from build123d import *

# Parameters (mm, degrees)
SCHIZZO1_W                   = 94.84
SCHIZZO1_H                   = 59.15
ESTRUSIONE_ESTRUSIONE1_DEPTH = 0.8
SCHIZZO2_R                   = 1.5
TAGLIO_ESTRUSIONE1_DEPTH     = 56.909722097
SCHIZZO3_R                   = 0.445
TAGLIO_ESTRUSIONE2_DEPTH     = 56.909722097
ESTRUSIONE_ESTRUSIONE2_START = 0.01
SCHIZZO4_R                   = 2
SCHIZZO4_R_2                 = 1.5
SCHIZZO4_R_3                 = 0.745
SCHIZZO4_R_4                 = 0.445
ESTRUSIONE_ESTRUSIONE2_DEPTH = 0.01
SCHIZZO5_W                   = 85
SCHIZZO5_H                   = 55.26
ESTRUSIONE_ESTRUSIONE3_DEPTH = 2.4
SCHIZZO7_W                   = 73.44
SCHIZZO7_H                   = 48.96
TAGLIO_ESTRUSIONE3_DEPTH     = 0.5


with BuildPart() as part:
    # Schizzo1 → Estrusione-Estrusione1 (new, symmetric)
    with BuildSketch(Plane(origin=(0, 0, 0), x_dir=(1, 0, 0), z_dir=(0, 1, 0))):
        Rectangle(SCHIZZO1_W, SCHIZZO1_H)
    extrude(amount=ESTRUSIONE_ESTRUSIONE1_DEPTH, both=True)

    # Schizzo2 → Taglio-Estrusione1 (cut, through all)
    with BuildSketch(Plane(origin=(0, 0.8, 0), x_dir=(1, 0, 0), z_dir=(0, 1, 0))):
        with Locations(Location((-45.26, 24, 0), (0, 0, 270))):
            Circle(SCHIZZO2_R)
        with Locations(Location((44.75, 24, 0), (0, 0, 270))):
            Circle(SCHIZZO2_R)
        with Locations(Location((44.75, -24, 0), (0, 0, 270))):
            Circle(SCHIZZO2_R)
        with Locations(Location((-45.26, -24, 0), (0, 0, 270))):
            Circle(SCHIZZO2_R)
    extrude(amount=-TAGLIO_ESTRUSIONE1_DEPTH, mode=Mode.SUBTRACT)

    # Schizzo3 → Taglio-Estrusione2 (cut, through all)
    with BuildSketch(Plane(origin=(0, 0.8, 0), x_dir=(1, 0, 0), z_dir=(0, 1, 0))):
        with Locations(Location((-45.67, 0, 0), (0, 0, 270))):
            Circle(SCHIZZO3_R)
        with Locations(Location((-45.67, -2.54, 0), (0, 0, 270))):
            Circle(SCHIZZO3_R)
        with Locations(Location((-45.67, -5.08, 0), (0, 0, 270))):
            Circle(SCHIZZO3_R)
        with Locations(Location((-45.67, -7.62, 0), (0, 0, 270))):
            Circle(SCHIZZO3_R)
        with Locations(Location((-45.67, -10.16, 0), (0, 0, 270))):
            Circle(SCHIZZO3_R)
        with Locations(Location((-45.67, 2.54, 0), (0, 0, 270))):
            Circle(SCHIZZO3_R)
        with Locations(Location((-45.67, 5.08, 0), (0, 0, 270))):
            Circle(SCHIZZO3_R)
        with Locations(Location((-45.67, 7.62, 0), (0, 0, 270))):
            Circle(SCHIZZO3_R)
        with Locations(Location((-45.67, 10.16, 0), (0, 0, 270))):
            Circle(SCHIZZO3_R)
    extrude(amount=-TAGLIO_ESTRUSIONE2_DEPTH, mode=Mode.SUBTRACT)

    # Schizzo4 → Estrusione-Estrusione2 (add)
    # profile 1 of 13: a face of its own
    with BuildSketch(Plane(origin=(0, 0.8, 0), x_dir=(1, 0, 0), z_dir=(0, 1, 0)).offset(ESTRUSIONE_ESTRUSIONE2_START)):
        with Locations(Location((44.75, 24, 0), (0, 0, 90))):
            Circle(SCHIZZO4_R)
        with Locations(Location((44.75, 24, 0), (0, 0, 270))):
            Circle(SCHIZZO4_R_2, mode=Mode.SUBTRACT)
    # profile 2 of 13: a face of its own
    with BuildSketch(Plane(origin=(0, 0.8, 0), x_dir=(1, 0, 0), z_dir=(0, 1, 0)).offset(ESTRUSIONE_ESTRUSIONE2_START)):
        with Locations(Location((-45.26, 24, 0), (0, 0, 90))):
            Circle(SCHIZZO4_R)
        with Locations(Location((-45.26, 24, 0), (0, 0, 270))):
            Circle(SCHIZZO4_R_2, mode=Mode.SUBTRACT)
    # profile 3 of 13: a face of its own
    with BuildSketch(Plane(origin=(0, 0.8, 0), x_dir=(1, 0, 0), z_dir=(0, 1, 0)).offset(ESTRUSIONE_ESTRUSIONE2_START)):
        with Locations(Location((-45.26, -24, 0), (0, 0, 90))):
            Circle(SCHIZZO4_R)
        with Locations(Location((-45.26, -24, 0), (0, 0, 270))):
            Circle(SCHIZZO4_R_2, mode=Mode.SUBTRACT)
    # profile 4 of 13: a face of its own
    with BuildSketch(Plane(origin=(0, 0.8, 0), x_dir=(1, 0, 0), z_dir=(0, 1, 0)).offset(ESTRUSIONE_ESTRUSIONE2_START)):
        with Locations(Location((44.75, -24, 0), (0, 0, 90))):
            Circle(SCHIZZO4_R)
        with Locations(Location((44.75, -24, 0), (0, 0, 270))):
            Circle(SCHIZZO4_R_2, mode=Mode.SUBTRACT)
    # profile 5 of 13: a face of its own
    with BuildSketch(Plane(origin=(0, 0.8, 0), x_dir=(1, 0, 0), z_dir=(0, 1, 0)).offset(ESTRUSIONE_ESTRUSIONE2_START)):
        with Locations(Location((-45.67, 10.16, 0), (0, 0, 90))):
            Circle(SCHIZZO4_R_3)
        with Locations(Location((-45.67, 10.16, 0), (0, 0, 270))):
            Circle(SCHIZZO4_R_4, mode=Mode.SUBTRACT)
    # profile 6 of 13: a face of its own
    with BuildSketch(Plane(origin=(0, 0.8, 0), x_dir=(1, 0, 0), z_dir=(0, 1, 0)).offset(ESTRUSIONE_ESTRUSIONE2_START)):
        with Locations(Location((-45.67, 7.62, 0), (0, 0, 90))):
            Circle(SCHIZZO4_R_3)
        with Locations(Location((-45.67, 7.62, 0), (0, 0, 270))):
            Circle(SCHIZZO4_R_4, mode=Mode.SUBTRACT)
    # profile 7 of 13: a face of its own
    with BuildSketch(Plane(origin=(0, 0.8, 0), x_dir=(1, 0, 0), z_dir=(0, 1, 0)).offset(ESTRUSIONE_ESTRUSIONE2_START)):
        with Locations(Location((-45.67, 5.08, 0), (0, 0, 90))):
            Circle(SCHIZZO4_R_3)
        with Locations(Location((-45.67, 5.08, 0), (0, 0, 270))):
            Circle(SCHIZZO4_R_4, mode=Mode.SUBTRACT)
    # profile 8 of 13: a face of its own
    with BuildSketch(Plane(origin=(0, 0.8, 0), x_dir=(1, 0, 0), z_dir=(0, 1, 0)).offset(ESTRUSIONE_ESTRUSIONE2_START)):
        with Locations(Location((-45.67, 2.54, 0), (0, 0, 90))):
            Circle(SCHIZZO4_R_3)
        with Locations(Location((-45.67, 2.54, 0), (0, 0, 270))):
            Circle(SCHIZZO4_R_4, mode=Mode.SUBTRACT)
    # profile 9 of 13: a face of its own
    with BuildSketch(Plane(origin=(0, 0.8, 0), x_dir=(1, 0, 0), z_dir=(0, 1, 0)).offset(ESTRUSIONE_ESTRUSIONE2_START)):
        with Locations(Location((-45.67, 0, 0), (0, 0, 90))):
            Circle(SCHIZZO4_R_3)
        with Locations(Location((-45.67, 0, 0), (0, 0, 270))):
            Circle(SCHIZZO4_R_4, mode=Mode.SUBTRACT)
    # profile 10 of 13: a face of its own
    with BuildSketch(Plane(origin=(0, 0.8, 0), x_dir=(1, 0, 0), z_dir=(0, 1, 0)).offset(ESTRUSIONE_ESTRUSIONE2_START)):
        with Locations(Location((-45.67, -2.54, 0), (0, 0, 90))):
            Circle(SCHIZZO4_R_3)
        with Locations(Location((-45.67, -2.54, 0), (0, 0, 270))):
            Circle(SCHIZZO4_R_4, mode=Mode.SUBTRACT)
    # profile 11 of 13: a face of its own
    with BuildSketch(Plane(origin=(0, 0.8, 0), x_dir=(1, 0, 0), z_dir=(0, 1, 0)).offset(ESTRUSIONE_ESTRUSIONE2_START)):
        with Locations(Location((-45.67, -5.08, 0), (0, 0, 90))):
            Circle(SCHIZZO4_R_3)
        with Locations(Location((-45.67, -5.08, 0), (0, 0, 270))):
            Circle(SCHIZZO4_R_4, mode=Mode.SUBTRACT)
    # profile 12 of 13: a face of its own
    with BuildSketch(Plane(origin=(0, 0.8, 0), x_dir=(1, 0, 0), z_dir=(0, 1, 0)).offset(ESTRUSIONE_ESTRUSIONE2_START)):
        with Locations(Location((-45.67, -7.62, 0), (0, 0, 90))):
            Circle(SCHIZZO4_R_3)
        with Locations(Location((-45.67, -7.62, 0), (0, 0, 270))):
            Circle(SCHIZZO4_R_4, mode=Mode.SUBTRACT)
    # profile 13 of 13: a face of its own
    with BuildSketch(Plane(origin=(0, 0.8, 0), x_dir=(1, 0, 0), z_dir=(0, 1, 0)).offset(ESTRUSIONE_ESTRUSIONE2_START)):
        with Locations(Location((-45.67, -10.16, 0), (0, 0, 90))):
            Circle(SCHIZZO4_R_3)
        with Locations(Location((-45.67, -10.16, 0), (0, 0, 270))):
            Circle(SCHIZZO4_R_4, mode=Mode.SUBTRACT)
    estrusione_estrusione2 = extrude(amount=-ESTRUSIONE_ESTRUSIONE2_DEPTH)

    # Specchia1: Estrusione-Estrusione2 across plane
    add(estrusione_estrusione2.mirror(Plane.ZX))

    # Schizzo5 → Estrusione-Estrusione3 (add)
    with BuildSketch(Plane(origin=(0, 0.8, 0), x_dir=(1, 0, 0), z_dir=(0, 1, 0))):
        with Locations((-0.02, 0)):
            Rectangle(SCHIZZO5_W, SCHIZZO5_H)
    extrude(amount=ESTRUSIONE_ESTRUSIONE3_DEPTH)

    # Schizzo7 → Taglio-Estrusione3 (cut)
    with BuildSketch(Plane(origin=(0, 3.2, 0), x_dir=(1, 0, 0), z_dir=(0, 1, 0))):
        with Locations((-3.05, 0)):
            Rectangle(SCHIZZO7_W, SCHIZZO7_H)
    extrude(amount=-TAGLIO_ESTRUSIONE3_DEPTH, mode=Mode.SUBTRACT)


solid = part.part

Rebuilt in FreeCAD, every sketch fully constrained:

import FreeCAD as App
import Part
import Sketcher

V = App.Vector
Q = App.Units.Quantity


def add_polygon(sketch, points):
    """Adds a closed chain of lines whose ends are joined by coincident constraints."""
    first, n = sketch.GeometryCount, len(points)
    for a, b in zip(points, points[1:] + points[:1]):
        sketch.addGeometry(Part.LineSegment(App.Vector(*a, 0), App.Vector(*b, 0)), False)
    for i in range(n):
        sketch.addConstraint(Sketcher.Constraint("Coincident", first + i, 2, first + (i + 1) % n, 1))

doc = App.newDocument("Part")
body = doc.addObject("PartDesign::Body", "Body")

# Sketch on XZ plane
sketch1 = body.newObject("Sketcher::SketchObject", "Sketch")
sketch1.AttachmentSupport = (doc.getObject("XZ_Plane"), [""])
sketch1.MapMode = "FlatFace"
add_polygon(sketch1, [(-47, -30), (-47, 30), (47, 30), (47, -30)])  # lines 0-3
sketch1.addConstraint([
    Sketcher.Constraint("Vertical", 0),
    Sketcher.Constraint("Horizontal", 1),
    Sketcher.Constraint("Vertical", 2),
    Sketcher.Constraint("Horizontal", 3),
    Sketcher.Constraint("Symmetric", 0, 2, 2, 2, -1, 1),
    Sketcher.Constraint("DistanceX", 1, 1, 1, 2, Q("94.84 mm")),
    Sketcher.Constraint("DistanceY", 0, 1, 0, 2, Q("59.15 mm")),
])
pad1 = body.newObject("PartDesign::Pad", "Pad")
pad1.Profile = sketch1
pad1.Length = 1.6
pad1.Midplane = True

# Sketch on XZ plane
sketch2 = body.newObject("Sketcher::SketchObject", "Sketch001")
sketch2.AttachmentSupport = (doc.getObject("XZ_Plane"), [""])
sketch2.MapMode = "FlatFace"
sketch2.AttachmentOffset = App.Placement(V(0, 0, -0.8), App.Rotation())
sketch2.addGeometry([
    Part.Circle(V(-45.3, -24, 0), V(0, 0, 1), 1.5),
    Part.Circle(V(44.8, -24, 0), V(0, 0, 1), 1.5),
    Part.Circle(V(44.8, 24, 0), V(0, 0, 1), 1.5),
    Part.Circle(V(-45.3, 24, 0), V(0, 0, 1), 1.5),
], False)
sketch2.addConstraint([
    Sketcher.Constraint("Equal", 0, 1),
    Sketcher.Constraint("Equal", 1, 2),
    Sketcher.Constraint("Equal", 2, 3),
    Sketcher.Constraint("Symmetric", 1, 3, 2, 3, -1),
    Sketcher.Constraint("Symmetric", 0, 3, 3, 3, -1),
    Sketcher.Constraint("Horizontal", 0, 3, 1, 3),
    Sketcher.Constraint("Diameter", 0, Q("3 mm")),
    Sketcher.Constraint("DistanceY", 0, 3, -1, 1, Q("24 mm")),
    Sketcher.Constraint("DistanceX", 0, 3, -1, 1, Q("45.26 mm")),
    Sketcher.Constraint("DistanceX", -1, 1, 1, 3, Q("44.75 mm")),
])
pocket1 = body.newObject("PartDesign::Pocket", "Pocket")
pocket1.Profile = sketch2
pocket1.Type = "ThroughAll"
pocket1.Reversed = True

# Sketch on XZ plane
sketch3 = body.newObject("Sketcher::SketchObject", "Sketch002")
sketch3.AttachmentSupport = (doc.getObject("XZ_Plane"), [""])
sketch3.MapMode = "FlatFace"
sketch3.AttachmentOffset = App.Placement(V(0, 0, -0.8), App.Rotation())
sketch3.addGeometry([
    Part.Circle(V(-45.67, 0, 0), V(0, 0, 1), 0.45),  # 0
    Part.Circle(V(-45.67, 2.54, 0), V(0, 0, 1), 0.45),  # 1
    Part.Circle(V(-45.67, 5.08, 0), V(0, 0, 1), 0.45),  # 2
    Part.Circle(V(-45.67, 7.62, 0), V(0, 0, 1), 0.45),  # 3
    Part.Circle(V(-45.67, 10.16, 0), V(0, 0, 1), 0.45),  # 4
    Part.Circle(V(-45.67, -2.54, 0), V(0, 0, 1), 0.45),  # 5
    Part.Circle(V(-45.67, -5.08, 0), V(0, 0, 1), 0.45),  # 6
    Part.Circle(V(-45.67, -7.62, 0), V(0, 0, 1), 0.45),  # 7
    Part.Circle(V(-45.67, -10.16, 0), V(0, 0, 1), 0.45),  # 8
], False)
sketch3.addConstraint([
    Sketcher.Constraint("Equal", 0, 1),
    Sketcher.Constraint("Equal", 1, 2),
    Sketcher.Constraint("Equal", 2, 3),
    Sketcher.Constraint("Equal", 3, 4),
    Sketcher.Constraint("Equal", 4, 5),
    Sketcher.Constraint("Equal", 5, 6),
    Sketcher.Constraint("Equal", 6, 7),
    Sketcher.Constraint("Equal", 7, 8),
    Sketcher.Constraint("Symmetric", 1, 3, 5, 3, -1),
    Sketcher.Constraint("Symmetric", 2, 3, 6, 3, -1),
    Sketcher.Constraint("Symmetric", 3, 3, 7, 3, -1),
    Sketcher.Constraint("Symmetric", 4, 3, 8, 3, -1),
    Sketcher.Constraint("PointOnObject", 0, 3, -1),
    Sketcher.Constraint("Vertical", 0, 3, 1, 3),
    Sketcher.Constraint("Vertical", 1, 3, 2, 3),
    Sketcher.Constraint("Vertical", 2, 3, 3, 3),
    Sketcher.Constraint("Vertical", 3, 3, 4, 3),
    Sketcher.Constraint("Diameter", 0, Q("0.89 mm")),
    Sketcher.Constraint("DistanceY", 5, 3, 4, 3, Q("12.7 mm")),
    Sketcher.Constraint("DistanceY", 6, 3, 3, 3, Q("12.7 mm")),
    Sketcher.Constraint("DistanceX", 0, 3, -1, 1, Q("45.67 mm")),
    Sketcher.Constraint("DistanceY", -1, 1, 1, 3, Q("2.54 mm")),
    Sketcher.Constraint("DistanceY", -1, 1, 2, 3, Q("5.08 mm")),
])
pocket2 = body.newObject("PartDesign::Pocket", "Pocket001")
pocket2.Profile = sketch3
pocket2.Type = "ThroughAll"
pocket2.Reversed = True

# Sketch on XZ plane
sketch4 = body.newObject("Sketcher::SketchObject", "Sketch003")
sketch4.AttachmentSupport = (doc.getObject("XZ_Plane"), [""])
sketch4.MapMode = "FlatFace"
sketch4.AttachmentOffset = App.Placement(V(0, 0, -0.81), App.Rotation())
sketch4.addGeometry([
    Part.Circle(V(44.75, -24, 0), V(0, 0, 1), 2),  # 0
    Part.Circle(V(44.75, -24, 0), V(0, 0, 1), 1.5),  # 1
    Part.Circle(V(-45.26, -24, 0), V(0, 0, 1), 2),  # 2
    Part.Circle(V(-45.26, -24, 0), V(0, 0, 1), 1.5),  # 3
    Part.Circle(V(-45.26, 24, 0), V(0, 0, 1), 2),  # 4
    Part.Circle(V(-45.26, 24, 0), V(0, 0, 1), 1.5),  # 5
    Part.Circle(V(44.75, 24, 0), V(0, 0, 1), 2),  # 6
    Part.Circle(V(44.75, 24, 0), V(0, 0, 1), 1.5),  # 7
    Part.Circle(V(-45.67, -10.16, 0), V(0, 0, 1), 0.74),  # 8
    Part.Circle(V(-45.67, -10.16, 0), V(0, 0, 1), 0.45),  # 9
    Part.Circle(V(-45.67, -7.62, 0), V(0, 0, 1), 0.74),  # 10
    Part.Circle(V(-45.67, -7.62, 0), V(0, 0, 1), 0.45),  # 11
    Part.Circle(V(-45.67, -5.08, 0), V(0, 0, 1), 0.74),  # 12
    Part.Circle(V(-45.67, -5.08, 0), V(0, 0, 1), 0.45),  # 13
    Part.Circle(V(-45.67, -2.54, 0), V(0, 0, 1), 0.74),  # 14
    Part.Circle(V(-45.67, -2.54, 0), V(0, 0, 1), 0.45),  # 15
    Part.Circle(V(-45.67, 0, 0), V(0, 0, 1), 0.74),  # 16
    Part.Circle(V(-45.67, 0, 0), V(0, 0, 1), 0.45),  # 17
    Part.Circle(V(-45.67, 2.54, 0), V(0, 0, 1), 0.74),  # 18
    Part.Circle(V(-45.67, 2.54, 0), V(0, 0, 1), 0.45),  # 19
    Part.Circle(V(-45.67, 5.08, 0), V(0, 0, 1), 0.74),  # 20
    Part.Circle(V(-45.67, 5.08, 0), V(0, 0, 1), 0.45),  # 21
    Part.Circle(V(-45.67, 7.62, 0), V(0, 0, 1), 0.74),  # 22
    Part.Circle(V(-45.67, 7.62, 0), V(0, 0, 1), 0.45),  # 23
    Part.Circle(V(-45.67, 10.16, 0), V(0, 0, 1), 0.74),  # 24
    Part.Circle(V(-45.67, 10.16, 0), V(0, 0, 1), 0.45),  # 25
], False)
sketch4.addConstraint([
    Sketcher.Constraint("Coincident", 1, 3, 0, 3),
    Sketcher.Constraint("Coincident", 3, 3, 2, 3),
    Sketcher.Constraint("Coincident", 5, 3, 4, 3),
    Sketcher.Constraint("Coincident", 7, 3, 6, 3),
    Sketcher.Constraint("Coincident", 9, 3, 8, 3),
    Sketcher.Constraint("Coincident", 11, 3, 10, 3),
    Sketcher.Constraint("Coincident", 13, 3, 12, 3),
    Sketcher.Constraint("Coincident", 15, 3, 14, 3),
    Sketcher.Constraint("Coincident", 17, 3, 16, 3),
    Sketcher.Constraint("Coincident", 19, 3, 18, 3),
    Sketcher.Constraint("Coincident", 21, 3, 20, 3),
    Sketcher.Constraint("Coincident", 23, 3, 22, 3),
    Sketcher.Constraint("Coincident", 25, 3, 24, 3),
    Sketcher.Constraint("Equal", 0, 2),
    Sketcher.Constraint("Equal", 1, 3),
    Sketcher.Constraint("Equal", 2, 4),
    Sketcher.Constraint("Equal", 3, 5),
    Sketcher.Constraint("Equal", 4, 6),
    Sketcher.Constraint("Equal", 5, 7),
    Sketcher.Constraint("Equal", 8, 10),
    Sketcher.Constraint("Equal", 9, 11),
    Sketcher.Constraint("Equal", 10, 12),
    Sketcher.Constraint("Equal", 11, 13),
    Sketcher.Constraint("Equal", 12, 14),
    Sketcher.Constraint("Equal", 13, 15),
    Sketcher.Constraint("Equal", 14, 16),
    Sketcher.Constraint("Equal", 15, 17),
    Sketcher.Constraint("Equal", 16, 18),
    Sketcher.Constraint("Equal", 17, 19),
    Sketcher.Constraint("Equal", 18, 20),
    Sketcher.Constraint("Equal", 19, 21),
    Sketcher.Constraint("Equal", 20, 22),
    Sketcher.Constraint("Equal", 21, 23),
    Sketcher.Constraint("Equal", 22, 24),
    Sketcher.Constraint("Equal", 23, 25),
    Sketcher.Constraint("Symmetric", 2, 3, 4, 3, -1),
    Sketcher.Constraint("Symmetric", 0, 3, 6, 3, -1),
    Sketcher.Constraint("Symmetric", 14, 3, 18, 3, -1),
    Sketcher.Constraint("Symmetric", 12, 3, 20, 3, -1),
    Sketcher.Constraint("Symmetric", 10, 3, 22, 3, -1),
    Sketcher.Constraint("Symmetric", 8, 3, 24, 3, -1),
    Sketcher.Constraint("PointOnObject", 16, 3, -1),
    Sketcher.Constraint("Horizontal", 1, 3, 2, 3),
    Sketcher.Constraint("Vertical", 9, 3, 10, 3),
    Sketcher.Constraint("Vertical", 11, 3, 12, 3),
    Sketcher.Constraint("Vertical", 13, 3, 14, 3),
    Sketcher.Constraint("Vertical", 15, 3, 16, 3),
    Sketcher.Constraint("Diameter", 0, Q("4 mm")),
    Sketcher.Constraint("Diameter", 1, Q("3 mm")),
    Sketcher.Constraint("Diameter", 8, Q("1.49 mm")),
    Sketcher.Constraint("Diameter", 9, Q("0.89 mm")),
    Sketcher.Constraint("DistanceY", 0, 3, -1, 1, Q("24 mm")),
    Sketcher.Constraint("DistanceX", -1, 1, 0, 3, Q("44.75 mm")),
    Sketcher.Constraint("DistanceX", 2, 3, -1, 1, Q("45.26 mm")),
    Sketcher.Constraint("DistanceX", 8, 3, -1, 1, Q("45.67 mm")),
    Sketcher.Constraint("DistanceY", 8, 3, -1, 1, Q("10.16 mm")),
    Sketcher.Constraint("DistanceY", 10, 3, -1, 1, Q("7.62 mm")),
    Sketcher.Constraint("DistanceY", 12, 3, -1, 1, Q("5.08 mm")),
    Sketcher.Constraint("DistanceY", 14, 3, -1, 1, Q("2.54 mm")),
])
pad2 = body.newObject("PartDesign::Pad", "Pad001")
pad2.Profile = sketch4
pad2.Length = 0.01
doc.recompute()

mirrored = body.newObject("PartDesign::Mirrored", "Mirrored")
mirrored.Originals = [pad2]
mirrored.MirrorPlane = (doc.getObject("XZ_Plane"), [""])
body.Tip = mirrored

# Sketch on XZ plane
sketch5 = body.newObject("Sketcher::SketchObject", "Sketch004")
sketch5.AttachmentSupport = (doc.getObject("XZ_Plane"), [""])
sketch5.MapMode = "FlatFace"
sketch5.AttachmentOffset = App.Placement(V(0, 0, -0.8), App.Rotation())
add_polygon(sketch5, [(-43, -28), (-43, 28), (42, 28), (42, -28)])  # lines 0-3
sketch5.addConstraint([
    Sketcher.Constraint("Vertical", 0),
    Sketcher.Constraint("Horizontal", 1),
    Sketcher.Constraint("Vertical", 2),
    Sketcher.Constraint("Horizontal", 3),
    Sketcher.Constraint("DistanceX", 1, 1, 1, 2, Q("85 mm")),
    Sketcher.Constraint("DistanceY", 0, 1, 0, 2, Q("55.26 mm")),
    Sketcher.Constraint("DistanceX", 0, 2, -1, 1, Q("42.52 mm")),
    Sketcher.Constraint("DistanceY", -1, 1, 0, 2, Q("27.63 mm")),
])
pad3 = body.newObject("PartDesign::Pad", "Pad002")
pad3.Profile = sketch5
pad3.Length = 2.4
pad3.Reversed = True

# Sketch on XZ plane
sketch6 = body.newObject("Sketcher::SketchObject", "Sketch005")
sketch6.AttachmentSupport = (doc.getObject("XZ_Plane"), [""])
sketch6.MapMode = "FlatFace"
sketch6.AttachmentOffset = App.Placement(V(0, 0, -3.2), App.Rotation())
add_polygon(sketch6, [(-40, -24), (-40, 24), (34, 24), (34, -24)])  # lines 0-3
sketch6.addConstraint([
    Sketcher.Constraint("Vertical", 0),
    Sketcher.Constraint("Horizontal", 1),
    Sketcher.Constraint("Vertical", 2),
    Sketcher.Constraint("Horizontal", 3),
    Sketcher.Constraint("DistanceX", 1, 1, 1, 2, Q("73.44 mm")),
    Sketcher.Constraint("DistanceY", 0, 1, 0, 2, Q("48.96 mm")),
    Sketcher.Constraint("DistanceX", 0, 2, -1, 1, Q("39.77 mm")),
    Sketcher.Constraint("DistanceY", -1, 1, 0, 2, Q("24.48 mm")),
])
pocket3 = body.newObject("PartDesign::Pocket", "Pocket002")
pocket3.Profile = sketch6
pocket3.Length = 0.5
pocket3.Reversed = True

doc.recompute()
